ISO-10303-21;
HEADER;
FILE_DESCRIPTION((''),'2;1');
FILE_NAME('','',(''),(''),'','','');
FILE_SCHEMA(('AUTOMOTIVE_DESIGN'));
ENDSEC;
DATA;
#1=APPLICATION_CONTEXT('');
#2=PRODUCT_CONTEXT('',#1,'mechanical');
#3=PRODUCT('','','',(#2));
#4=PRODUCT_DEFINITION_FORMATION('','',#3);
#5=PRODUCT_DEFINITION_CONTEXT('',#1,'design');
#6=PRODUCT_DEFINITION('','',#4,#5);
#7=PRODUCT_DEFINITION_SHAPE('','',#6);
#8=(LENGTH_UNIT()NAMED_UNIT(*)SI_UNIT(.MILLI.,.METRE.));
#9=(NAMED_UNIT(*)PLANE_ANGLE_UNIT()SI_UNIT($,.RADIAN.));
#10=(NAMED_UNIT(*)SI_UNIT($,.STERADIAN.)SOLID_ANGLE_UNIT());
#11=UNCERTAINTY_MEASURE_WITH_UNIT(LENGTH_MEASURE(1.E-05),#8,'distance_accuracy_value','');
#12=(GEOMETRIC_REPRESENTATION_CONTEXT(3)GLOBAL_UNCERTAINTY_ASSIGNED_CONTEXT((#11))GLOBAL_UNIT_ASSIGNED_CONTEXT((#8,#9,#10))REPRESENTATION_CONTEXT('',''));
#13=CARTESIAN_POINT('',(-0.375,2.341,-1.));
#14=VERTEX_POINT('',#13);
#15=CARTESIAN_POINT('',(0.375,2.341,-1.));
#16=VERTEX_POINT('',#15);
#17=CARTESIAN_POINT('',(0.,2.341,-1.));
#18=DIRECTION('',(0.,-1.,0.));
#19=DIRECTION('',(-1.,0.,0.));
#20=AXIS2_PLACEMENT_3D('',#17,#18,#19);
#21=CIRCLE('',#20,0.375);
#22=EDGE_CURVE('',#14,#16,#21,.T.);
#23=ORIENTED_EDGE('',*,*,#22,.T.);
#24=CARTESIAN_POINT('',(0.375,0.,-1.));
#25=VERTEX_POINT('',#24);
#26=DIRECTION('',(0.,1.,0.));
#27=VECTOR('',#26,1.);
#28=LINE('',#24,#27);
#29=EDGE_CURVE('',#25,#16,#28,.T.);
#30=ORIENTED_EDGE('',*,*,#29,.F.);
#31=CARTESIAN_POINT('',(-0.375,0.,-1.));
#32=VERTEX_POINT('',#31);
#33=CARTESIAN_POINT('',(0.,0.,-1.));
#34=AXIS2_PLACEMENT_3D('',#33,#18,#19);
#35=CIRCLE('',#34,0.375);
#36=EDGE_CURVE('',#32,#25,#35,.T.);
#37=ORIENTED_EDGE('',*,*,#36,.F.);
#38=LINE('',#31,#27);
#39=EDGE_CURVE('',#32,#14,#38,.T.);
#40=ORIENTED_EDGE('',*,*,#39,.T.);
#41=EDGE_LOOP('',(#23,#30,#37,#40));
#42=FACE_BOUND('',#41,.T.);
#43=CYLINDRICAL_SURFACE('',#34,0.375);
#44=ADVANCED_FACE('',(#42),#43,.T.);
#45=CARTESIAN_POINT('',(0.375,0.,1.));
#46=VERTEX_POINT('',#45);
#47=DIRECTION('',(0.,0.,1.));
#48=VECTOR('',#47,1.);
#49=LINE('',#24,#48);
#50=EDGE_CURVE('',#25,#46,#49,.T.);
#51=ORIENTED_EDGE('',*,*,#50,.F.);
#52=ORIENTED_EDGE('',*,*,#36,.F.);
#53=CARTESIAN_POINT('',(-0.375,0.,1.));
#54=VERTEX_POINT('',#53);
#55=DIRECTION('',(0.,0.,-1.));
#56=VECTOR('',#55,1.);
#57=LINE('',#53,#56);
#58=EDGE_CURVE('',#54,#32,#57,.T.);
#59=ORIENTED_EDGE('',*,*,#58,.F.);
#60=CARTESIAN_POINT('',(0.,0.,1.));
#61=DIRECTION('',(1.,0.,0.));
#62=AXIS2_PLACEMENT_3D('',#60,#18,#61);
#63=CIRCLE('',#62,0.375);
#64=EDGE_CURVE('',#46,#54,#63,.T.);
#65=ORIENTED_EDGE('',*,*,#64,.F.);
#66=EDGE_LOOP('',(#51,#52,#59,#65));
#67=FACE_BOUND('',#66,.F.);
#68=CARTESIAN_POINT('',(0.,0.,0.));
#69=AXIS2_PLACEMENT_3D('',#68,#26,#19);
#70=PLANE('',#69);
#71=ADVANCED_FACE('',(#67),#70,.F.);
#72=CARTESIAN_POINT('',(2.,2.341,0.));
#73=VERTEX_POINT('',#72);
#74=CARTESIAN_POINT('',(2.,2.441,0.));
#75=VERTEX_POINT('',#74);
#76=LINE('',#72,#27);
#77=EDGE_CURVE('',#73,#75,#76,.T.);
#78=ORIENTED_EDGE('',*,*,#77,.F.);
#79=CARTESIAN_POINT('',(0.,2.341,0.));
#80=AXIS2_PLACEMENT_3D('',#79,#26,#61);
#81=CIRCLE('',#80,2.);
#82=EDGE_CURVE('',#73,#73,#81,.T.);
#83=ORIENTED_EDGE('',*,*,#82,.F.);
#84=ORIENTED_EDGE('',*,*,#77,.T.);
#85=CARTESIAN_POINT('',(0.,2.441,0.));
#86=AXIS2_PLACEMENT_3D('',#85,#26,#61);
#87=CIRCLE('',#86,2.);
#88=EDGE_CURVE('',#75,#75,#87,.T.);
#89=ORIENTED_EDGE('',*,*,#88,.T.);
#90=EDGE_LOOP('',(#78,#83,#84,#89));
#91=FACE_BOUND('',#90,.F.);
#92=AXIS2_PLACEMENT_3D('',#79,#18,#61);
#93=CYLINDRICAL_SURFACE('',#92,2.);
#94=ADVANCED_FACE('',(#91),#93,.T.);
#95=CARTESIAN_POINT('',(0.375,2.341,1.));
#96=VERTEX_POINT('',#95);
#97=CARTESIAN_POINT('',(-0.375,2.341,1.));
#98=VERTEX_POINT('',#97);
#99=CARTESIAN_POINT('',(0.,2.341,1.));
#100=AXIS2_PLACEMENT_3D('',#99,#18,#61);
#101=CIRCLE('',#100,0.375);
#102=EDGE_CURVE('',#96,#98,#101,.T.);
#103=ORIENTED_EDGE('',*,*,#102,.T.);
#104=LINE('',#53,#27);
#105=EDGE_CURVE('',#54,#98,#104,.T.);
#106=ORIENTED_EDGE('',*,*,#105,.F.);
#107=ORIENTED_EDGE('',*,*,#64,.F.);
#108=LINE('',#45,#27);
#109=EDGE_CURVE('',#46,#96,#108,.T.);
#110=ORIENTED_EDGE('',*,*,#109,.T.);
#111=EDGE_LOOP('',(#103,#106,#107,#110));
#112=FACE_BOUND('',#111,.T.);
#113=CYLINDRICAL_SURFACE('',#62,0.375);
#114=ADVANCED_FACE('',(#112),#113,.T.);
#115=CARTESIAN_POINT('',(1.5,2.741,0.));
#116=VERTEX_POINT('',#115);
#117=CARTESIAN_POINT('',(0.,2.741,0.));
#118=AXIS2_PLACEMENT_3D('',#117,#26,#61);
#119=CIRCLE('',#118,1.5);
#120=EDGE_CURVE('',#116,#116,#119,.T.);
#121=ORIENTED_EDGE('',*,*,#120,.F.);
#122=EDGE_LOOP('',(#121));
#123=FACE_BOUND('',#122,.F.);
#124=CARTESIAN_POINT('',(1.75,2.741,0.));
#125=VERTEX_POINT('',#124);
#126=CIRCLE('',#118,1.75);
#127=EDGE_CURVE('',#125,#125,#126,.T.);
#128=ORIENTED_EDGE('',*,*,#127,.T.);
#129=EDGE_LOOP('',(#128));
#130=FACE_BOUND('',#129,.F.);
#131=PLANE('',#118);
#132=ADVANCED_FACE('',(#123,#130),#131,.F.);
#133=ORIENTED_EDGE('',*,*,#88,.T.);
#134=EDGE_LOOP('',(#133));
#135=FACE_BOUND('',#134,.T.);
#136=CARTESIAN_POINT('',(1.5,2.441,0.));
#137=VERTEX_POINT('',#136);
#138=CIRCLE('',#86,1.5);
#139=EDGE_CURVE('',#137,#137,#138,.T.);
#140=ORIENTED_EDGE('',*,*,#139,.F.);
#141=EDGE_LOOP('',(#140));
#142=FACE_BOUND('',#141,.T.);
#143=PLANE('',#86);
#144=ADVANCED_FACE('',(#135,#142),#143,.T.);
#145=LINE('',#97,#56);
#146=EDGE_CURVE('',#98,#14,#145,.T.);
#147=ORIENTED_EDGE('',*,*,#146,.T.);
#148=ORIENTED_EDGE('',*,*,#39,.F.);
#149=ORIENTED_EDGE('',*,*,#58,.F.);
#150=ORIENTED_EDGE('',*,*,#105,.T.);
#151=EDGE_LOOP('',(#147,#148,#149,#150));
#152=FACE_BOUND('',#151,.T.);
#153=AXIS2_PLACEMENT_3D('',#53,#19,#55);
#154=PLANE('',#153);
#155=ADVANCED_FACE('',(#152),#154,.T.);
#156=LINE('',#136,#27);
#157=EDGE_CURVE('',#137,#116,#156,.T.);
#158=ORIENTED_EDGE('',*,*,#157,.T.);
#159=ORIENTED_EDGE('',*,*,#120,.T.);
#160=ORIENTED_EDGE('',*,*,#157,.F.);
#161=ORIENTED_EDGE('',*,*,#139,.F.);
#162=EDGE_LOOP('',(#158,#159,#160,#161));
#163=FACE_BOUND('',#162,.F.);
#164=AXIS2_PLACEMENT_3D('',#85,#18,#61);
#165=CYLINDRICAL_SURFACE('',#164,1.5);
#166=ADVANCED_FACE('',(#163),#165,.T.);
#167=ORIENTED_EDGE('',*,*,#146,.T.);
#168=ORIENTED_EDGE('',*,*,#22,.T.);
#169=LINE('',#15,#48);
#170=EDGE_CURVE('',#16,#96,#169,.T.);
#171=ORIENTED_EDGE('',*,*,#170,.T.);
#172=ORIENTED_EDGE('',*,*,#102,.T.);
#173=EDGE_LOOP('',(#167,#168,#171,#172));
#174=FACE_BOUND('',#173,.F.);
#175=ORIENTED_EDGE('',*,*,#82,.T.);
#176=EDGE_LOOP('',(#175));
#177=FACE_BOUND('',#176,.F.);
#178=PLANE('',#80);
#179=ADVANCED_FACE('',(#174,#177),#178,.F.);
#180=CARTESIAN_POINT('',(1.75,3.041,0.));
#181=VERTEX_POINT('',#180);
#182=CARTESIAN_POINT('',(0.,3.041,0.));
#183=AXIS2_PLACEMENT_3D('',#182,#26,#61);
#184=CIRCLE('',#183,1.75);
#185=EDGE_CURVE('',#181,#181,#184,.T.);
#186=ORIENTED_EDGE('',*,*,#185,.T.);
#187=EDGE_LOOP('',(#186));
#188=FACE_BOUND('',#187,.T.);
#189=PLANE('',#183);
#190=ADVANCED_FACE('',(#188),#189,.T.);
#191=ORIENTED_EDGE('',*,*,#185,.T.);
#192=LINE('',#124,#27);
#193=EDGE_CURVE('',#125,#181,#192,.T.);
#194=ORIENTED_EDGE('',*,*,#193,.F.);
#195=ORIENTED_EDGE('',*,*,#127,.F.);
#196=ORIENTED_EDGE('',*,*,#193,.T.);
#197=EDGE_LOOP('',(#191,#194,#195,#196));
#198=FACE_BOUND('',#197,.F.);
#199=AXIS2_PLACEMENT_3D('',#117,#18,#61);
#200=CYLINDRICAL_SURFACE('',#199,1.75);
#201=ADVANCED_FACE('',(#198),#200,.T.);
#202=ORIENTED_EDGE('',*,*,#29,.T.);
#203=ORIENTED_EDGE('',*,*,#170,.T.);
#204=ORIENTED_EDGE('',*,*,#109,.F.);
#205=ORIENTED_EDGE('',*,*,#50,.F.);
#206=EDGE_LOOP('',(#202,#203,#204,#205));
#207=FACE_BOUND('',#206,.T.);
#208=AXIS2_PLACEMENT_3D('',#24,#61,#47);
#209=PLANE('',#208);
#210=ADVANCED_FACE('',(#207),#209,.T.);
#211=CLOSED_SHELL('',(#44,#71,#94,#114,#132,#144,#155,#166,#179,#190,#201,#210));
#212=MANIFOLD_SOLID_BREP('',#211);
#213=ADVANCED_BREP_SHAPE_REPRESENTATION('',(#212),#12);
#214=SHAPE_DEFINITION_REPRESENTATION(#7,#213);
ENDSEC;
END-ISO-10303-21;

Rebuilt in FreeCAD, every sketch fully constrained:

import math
import FreeCAD as App
import Part
import Sketcher
from FreeCAD import Vector

doc = App.newDocument("Part")
params = doc.addObject("Spreadsheet::Sheet", "Params")
for row, (alias, value) in enumerate([
    ("sketch1_diameter", "3.81 mm"),
    ("pad1_length", "2.341 mm"),
    ("sketch2_diameter", "4 mm"),
    ("pad2_length", "0.1 mm"),
    ("sketch3_diameter", "3.81 mm"),
    ("pocket1_length", "2.341 mm"),
    ("sketch4_diameter", "3 mm"),
    ("pad3_length", "0.3 mm"),
    ("sketch5_diameter", "3.5 mm"),
    ("pad4_length", "0.3 mm"),
], start=1):
    params.set(f"A{row}", alias)
    params.set(f"B{row}", "=" + value)
    params.setAlias(f"B{row}", alias)

body = doc.addObject("PartDesign::Body", "Body")

sketch1 = body.newObject("Sketcher::SketchObject", "Sketch")
sketch1.AttachmentSupport = (doc.getObject("XZ_Plane"), [""])
sketch1.MapMode = "FlatFace"
sketch1.addGeometry(Part.Circle(Vector(0, 0, 0), Vector(0, 0, 1), 1.9), False)
sketch1.addConstraint(Sketcher.Constraint("Coincident", 0, 3, -1, 1))
sketch1.addConstraint(Sketcher.Constraint("Diameter", 0, 3.81))
sketch1.setExpression("Constraints[1]", "Params.sketch1_diameter")
pad1 = body.newObject("PartDesign::Pad", "Pad")
pad1.Profile = sketch1
pad1.setExpression("Length", "Params.pad1_length")
pad1.Reversed = True

sketch2 = body.newObject("Sketcher::SketchObject", "Sketch001")
sketch2.AttachmentSupport = (doc.getObject("XZ_Plane"), [""])
sketch2.MapMode = "FlatFace"
sketch2.AttachmentOffset = App.Placement(Vector(0, 0, -2.341), App.Rotation())
sketch2.addGeometry(Part.Circle(Vector(0, 0, 0), Vector(0, 0, 1), 2), False)
sketch2.addConstraint(Sketcher.Constraint("Coincident", 0, 3, -1, 1))
sketch2.addConstraint(Sketcher.Constraint("Diameter", 0, 4.0))
sketch2.setExpression("Constraints[1]", "Params.sketch2_diameter")
pad2 = body.newObject("PartDesign::Pad", "Pad001")
pad2.Profile = sketch2
pad2.setExpression("Length", "Params.pad2_length")
pad2.Reversed = True

sketch3 = body.newObject("Sketcher::SketchObject", "Sketch002")
sketch3.AttachmentSupport = (doc.getObject("XZ_Plane"), [""])
sketch3.MapMode = "FlatFace"
sketch3.addGeometry(Part.Circle(Vector(0, 0, 0), Vector(0, 0, 1), 1.91), False)
sketch3.addGeometry(Part.LineSegment(Vector(-0.38, -1, 0), Vector(-0.38, 1, 0)), False)
sketch3.addGeometry(Part.ArcOfCircle(Part.Circle(Vector(0, 1, 0), Vector(0, 0, 1), 0.38), math.radians(0), math.radians(180)), False)
sketch3.addGeometry(Part.LineSegment(Vector(0.38, 1, 0), Vector(0.38, -1, 0)), False)
sketch3.addGeometry(Part.ArcOfCircle(Part.Circle(Vector(0, -1, 0), Vector(0, 0, 1), 0.38), math.radians(180), math.radians(360)), False)
sketch3.addConstraint(Sketcher.Constraint("Tangent", 1, 2, 2, 2))
sketch3.addConstraint(Sketcher.Constraint("Tangent", 2, 1, 3, 1))
sketch3.addConstraint(Sketcher.Constraint("Tangent", 3, 2, 4, 2))
sketch3.addConstraint(Sketcher.Constraint("Tangent", 4, 1, 1, 1))
sketch3.addConstraint(Sketcher.Constraint("Vertical", 1))
sketch3.addConstraint(Sketcher.Constraint("Vertical", 3))
sketch3.addConstraint(Sketcher.Constraint("Coincident", 0, 3, -1, 1))
sketch3.addConstraint(Sketcher.Constraint("Symmetric", 2, 3, 4, 3, -1, 1))
sketch3.addConstraint(Sketcher.Constraint("DistanceY", -1, 1, 2, 3, 1.0))
sketch3.addConstraint(Sketcher.Constraint("Radius", 2, 0.375))
sketch3.addConstraint(Sketcher.Constraint("Diameter", 0, 3.81))
sketch3.setExpression("Constraints[10]", "Params.sketch3_diameter")
pocket1 = body.newObject("PartDesign::Pocket", "Pocket")
pocket1.Profile = sketch3
pocket1.setExpression("Length", "Params.pocket1_length")

sketch4 = body.newObject("Sketcher::SketchObject", "Sketch003")
sketch4.AttachmentSupport = (doc.getObject("XZ_Plane"), [""])
sketch4.MapMode = "FlatFace"
sketch4.AttachmentOffset = App.Placement(Vector(0, 0, -2.441), App.Rotation())
sketch4.addGeometry(Part.Circle(Vector(0, 0, 0), Vector(0, 0, 1), 1.5), False)
sketch4.addConstraint(Sketcher.Constraint("Coincident", 0, 3, -1, 1))
sketch4.addConstraint(Sketcher.Constraint("Diameter", 0, 3.0))
sketch4.setExpression("Constraints[1]", "Params.sketch4_diameter")
pad3 = body.newObject("PartDesign::Pad", "Pad002")
pad3.Profile = sketch4
pad3.setExpression("Length", "Params.pad3_length")
pad3.Reversed = True

sketch5 = body.newObject("Sketcher::SketchObject", "Sketch004")
sketch5.AttachmentSupport = (doc.getObject("XZ_Plane"), [""])
sketch5.MapMode = "FlatFace"
sketch5.AttachmentOffset = App.Placement(Vector(0, 0, -2.741), App.Rotation())
sketch5.addGeometry(Part.Circle(Vector(0, 0, 0), Vector(0, 0, 1), 1.8), False)
sketch5.addConstraint(Sketcher.Constraint("Coincident", 0, 3, -1, 1))
sketch5.addConstraint(Sketcher.Constraint("Diameter", 0, 3.5))
sketch5.setExpression("Constraints[1]", "Params.sketch5_diameter")
pad4 = body.newObject("PartDesign::Pad", "Pad003")
pad4.Profile = sketch5
pad4.setExpression("Length", "Params.pad4_length")
pad4.Reversed = True

doc.recompute()
